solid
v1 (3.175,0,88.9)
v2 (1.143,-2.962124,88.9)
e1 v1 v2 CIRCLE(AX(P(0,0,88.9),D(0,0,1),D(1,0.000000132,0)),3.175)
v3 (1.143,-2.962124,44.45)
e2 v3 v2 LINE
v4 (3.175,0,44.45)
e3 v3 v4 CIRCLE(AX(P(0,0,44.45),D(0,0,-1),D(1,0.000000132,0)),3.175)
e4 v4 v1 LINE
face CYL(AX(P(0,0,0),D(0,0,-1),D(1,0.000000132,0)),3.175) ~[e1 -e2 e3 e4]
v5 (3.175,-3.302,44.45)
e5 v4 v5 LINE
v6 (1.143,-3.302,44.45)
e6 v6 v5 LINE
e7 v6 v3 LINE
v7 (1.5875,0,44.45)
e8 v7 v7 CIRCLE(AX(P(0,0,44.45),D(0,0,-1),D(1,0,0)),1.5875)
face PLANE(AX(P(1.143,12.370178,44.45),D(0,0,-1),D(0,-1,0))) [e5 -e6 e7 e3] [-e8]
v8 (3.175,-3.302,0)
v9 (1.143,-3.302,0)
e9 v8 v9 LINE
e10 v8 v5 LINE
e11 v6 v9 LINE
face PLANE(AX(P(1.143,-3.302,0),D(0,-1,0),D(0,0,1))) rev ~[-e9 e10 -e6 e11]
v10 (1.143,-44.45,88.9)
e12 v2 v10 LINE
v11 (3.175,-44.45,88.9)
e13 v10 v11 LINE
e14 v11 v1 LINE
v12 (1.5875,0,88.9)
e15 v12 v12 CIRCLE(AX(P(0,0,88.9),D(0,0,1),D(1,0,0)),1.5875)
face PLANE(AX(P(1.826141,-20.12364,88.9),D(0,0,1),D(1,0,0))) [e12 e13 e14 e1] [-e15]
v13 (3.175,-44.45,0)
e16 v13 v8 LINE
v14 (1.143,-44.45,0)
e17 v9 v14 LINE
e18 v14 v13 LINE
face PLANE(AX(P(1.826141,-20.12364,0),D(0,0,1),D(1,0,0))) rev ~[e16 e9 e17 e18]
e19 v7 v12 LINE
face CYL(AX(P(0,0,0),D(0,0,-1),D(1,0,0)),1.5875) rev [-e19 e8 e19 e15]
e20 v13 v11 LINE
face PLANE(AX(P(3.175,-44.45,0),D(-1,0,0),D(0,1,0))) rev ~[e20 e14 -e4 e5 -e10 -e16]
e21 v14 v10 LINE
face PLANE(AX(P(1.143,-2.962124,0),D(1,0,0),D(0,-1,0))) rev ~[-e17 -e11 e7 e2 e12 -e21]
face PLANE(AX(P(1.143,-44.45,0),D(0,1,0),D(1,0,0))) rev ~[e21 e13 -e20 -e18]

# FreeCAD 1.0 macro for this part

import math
import FreeCAD as App
import Part
import Sketcher
Q = App.Units.Quantity

doc = App.newDocument("Part")
body = doc.addObject("PartDesign::Body", "Body")

sketch1 = body.newObject("Sketcher::SketchObject", "Sketch")
sketch1.AttachmentSupport = (doc.getObject("XY_Plane"), [""])
sketch1.MapMode = "FlatFace"
sketch1.addGeometry([
    Part.LineSegment(App.Vector(3.2, -44.5, 0), App.Vector(3.2, 0, 0)),
    Part.ArcOfCircle(Part.Circle(App.Vector(0, 0, 0), App.Vector(0, 0, 1), 3.2), math.radians(0), math.radians(291)),
    Part.LineSegment(App.Vector(1.1, -3, 0), App.Vector(1.1, -44.5, 0)),
    Part.LineSegment(App.Vector(1.1, -44.5, 0), App.Vector(3.2, -44.5, 0)),
    Part.Circle(App.Vector(0, 0, 0), App.Vector(0, 0, 1), 1.6),
], False)
sketch1.addConstraint([
    Sketcher.Constraint("Tangent", 0, 2, 1, 1),
    Sketcher.Constraint("Coincident", 1, 2, 2, 1),
    Sketcher.Constraint("Coincident", 2, 2, 3, 1),
    Sketcher.Constraint("Coincident", 3, 2, 0, 1),
    Sketcher.Constraint("Vertical", 0),
    Sketcher.Constraint("Vertical", 2),
    Sketcher.Constraint("Horizontal", 3),
    Sketcher.Constraint("Coincident", 1, 3, -1, 1),
    Sketcher.Constraint("Coincident", 4, 3, -1, 1),
    Sketcher.Constraint("Diameter", 4, Q("0.125 in")),
    Sketcher.Constraint("Radius", 1, Q("0.125 in")),
    Sketcher.Constraint("DistanceX", 3, 1, 3, 2, Q("0.08 in")),
    Sketcher.Constraint("DistanceY", 0, 1, 0, 2, Q("1.75 in")),
])
pad1 = body.newObject("PartDesign::Pad", "Pad")
pad1.Profile = sketch1
pad1.Length = Q("3.5 in")

sketch2 = body.newObject("Sketcher::SketchObject", "Sketch001")
sketch2.AttachmentSupport = (doc.getObject("YZ_Plane"), [""])
sketch2.MapMode = "FlatFace"
sketch2.AttachmentOffset = App.Placement(App.Vector(0, 0, 0.045 * 25.4), App.Rotation())
sketch2.addGeometry([
    Part.LineSegment(App.Vector(12, 44, 0), App.Vector(12, 0, 0)),
    Part.LineSegment(App.Vector(12, 0, 0), App.Vector(-3, 0, 0)),
    Part.LineSegment(App.Vector(-3, 0, 0), App.Vector(-3, 44, 0)),
    Part.LineSegment(App.Vector(-3, 44, 0), App.Vector(12, 44, 0)),
], False)
sketch2.addConstraint([
    Sketcher.Constraint("Coincident", 0, 2, 1, 1),
    Sketcher.Constraint("Coincident", 1, 2, 2, 1),
    Sketcher.Constraint("Coincident", 2, 2, 3, 1),
    Sketcher.Constraint("Coincident", 3, 2, 0, 1),
    Sketcher.Constraint("Vertical", 0),
    Sketcher.Constraint("Horizontal", 1),
    Sketcher.Constraint("Vertical", 2),
    Sketcher.Constraint("Horizontal", 3),
    Sketcher.Constraint("PointOnObject", 0, 2, -1),
    Sketcher.Constraint("DistanceY", 0, 2, 0, 1, Q("1.75 in")),
    Sketcher.Constraint("DistanceX", 1, 2, -1, 1, Q("0.13 in")),
    Sketcher.Constraint("DistanceX", 1, 2, 1, 1, 15.672178),
])
pocket1 = body.newObject("PartDesign::Pocket", "Pocket")
pocket1.Profile = sketch2
pocket1.Length = Q("1 in")
pocket1.Midplane = True

doc.recompute()
